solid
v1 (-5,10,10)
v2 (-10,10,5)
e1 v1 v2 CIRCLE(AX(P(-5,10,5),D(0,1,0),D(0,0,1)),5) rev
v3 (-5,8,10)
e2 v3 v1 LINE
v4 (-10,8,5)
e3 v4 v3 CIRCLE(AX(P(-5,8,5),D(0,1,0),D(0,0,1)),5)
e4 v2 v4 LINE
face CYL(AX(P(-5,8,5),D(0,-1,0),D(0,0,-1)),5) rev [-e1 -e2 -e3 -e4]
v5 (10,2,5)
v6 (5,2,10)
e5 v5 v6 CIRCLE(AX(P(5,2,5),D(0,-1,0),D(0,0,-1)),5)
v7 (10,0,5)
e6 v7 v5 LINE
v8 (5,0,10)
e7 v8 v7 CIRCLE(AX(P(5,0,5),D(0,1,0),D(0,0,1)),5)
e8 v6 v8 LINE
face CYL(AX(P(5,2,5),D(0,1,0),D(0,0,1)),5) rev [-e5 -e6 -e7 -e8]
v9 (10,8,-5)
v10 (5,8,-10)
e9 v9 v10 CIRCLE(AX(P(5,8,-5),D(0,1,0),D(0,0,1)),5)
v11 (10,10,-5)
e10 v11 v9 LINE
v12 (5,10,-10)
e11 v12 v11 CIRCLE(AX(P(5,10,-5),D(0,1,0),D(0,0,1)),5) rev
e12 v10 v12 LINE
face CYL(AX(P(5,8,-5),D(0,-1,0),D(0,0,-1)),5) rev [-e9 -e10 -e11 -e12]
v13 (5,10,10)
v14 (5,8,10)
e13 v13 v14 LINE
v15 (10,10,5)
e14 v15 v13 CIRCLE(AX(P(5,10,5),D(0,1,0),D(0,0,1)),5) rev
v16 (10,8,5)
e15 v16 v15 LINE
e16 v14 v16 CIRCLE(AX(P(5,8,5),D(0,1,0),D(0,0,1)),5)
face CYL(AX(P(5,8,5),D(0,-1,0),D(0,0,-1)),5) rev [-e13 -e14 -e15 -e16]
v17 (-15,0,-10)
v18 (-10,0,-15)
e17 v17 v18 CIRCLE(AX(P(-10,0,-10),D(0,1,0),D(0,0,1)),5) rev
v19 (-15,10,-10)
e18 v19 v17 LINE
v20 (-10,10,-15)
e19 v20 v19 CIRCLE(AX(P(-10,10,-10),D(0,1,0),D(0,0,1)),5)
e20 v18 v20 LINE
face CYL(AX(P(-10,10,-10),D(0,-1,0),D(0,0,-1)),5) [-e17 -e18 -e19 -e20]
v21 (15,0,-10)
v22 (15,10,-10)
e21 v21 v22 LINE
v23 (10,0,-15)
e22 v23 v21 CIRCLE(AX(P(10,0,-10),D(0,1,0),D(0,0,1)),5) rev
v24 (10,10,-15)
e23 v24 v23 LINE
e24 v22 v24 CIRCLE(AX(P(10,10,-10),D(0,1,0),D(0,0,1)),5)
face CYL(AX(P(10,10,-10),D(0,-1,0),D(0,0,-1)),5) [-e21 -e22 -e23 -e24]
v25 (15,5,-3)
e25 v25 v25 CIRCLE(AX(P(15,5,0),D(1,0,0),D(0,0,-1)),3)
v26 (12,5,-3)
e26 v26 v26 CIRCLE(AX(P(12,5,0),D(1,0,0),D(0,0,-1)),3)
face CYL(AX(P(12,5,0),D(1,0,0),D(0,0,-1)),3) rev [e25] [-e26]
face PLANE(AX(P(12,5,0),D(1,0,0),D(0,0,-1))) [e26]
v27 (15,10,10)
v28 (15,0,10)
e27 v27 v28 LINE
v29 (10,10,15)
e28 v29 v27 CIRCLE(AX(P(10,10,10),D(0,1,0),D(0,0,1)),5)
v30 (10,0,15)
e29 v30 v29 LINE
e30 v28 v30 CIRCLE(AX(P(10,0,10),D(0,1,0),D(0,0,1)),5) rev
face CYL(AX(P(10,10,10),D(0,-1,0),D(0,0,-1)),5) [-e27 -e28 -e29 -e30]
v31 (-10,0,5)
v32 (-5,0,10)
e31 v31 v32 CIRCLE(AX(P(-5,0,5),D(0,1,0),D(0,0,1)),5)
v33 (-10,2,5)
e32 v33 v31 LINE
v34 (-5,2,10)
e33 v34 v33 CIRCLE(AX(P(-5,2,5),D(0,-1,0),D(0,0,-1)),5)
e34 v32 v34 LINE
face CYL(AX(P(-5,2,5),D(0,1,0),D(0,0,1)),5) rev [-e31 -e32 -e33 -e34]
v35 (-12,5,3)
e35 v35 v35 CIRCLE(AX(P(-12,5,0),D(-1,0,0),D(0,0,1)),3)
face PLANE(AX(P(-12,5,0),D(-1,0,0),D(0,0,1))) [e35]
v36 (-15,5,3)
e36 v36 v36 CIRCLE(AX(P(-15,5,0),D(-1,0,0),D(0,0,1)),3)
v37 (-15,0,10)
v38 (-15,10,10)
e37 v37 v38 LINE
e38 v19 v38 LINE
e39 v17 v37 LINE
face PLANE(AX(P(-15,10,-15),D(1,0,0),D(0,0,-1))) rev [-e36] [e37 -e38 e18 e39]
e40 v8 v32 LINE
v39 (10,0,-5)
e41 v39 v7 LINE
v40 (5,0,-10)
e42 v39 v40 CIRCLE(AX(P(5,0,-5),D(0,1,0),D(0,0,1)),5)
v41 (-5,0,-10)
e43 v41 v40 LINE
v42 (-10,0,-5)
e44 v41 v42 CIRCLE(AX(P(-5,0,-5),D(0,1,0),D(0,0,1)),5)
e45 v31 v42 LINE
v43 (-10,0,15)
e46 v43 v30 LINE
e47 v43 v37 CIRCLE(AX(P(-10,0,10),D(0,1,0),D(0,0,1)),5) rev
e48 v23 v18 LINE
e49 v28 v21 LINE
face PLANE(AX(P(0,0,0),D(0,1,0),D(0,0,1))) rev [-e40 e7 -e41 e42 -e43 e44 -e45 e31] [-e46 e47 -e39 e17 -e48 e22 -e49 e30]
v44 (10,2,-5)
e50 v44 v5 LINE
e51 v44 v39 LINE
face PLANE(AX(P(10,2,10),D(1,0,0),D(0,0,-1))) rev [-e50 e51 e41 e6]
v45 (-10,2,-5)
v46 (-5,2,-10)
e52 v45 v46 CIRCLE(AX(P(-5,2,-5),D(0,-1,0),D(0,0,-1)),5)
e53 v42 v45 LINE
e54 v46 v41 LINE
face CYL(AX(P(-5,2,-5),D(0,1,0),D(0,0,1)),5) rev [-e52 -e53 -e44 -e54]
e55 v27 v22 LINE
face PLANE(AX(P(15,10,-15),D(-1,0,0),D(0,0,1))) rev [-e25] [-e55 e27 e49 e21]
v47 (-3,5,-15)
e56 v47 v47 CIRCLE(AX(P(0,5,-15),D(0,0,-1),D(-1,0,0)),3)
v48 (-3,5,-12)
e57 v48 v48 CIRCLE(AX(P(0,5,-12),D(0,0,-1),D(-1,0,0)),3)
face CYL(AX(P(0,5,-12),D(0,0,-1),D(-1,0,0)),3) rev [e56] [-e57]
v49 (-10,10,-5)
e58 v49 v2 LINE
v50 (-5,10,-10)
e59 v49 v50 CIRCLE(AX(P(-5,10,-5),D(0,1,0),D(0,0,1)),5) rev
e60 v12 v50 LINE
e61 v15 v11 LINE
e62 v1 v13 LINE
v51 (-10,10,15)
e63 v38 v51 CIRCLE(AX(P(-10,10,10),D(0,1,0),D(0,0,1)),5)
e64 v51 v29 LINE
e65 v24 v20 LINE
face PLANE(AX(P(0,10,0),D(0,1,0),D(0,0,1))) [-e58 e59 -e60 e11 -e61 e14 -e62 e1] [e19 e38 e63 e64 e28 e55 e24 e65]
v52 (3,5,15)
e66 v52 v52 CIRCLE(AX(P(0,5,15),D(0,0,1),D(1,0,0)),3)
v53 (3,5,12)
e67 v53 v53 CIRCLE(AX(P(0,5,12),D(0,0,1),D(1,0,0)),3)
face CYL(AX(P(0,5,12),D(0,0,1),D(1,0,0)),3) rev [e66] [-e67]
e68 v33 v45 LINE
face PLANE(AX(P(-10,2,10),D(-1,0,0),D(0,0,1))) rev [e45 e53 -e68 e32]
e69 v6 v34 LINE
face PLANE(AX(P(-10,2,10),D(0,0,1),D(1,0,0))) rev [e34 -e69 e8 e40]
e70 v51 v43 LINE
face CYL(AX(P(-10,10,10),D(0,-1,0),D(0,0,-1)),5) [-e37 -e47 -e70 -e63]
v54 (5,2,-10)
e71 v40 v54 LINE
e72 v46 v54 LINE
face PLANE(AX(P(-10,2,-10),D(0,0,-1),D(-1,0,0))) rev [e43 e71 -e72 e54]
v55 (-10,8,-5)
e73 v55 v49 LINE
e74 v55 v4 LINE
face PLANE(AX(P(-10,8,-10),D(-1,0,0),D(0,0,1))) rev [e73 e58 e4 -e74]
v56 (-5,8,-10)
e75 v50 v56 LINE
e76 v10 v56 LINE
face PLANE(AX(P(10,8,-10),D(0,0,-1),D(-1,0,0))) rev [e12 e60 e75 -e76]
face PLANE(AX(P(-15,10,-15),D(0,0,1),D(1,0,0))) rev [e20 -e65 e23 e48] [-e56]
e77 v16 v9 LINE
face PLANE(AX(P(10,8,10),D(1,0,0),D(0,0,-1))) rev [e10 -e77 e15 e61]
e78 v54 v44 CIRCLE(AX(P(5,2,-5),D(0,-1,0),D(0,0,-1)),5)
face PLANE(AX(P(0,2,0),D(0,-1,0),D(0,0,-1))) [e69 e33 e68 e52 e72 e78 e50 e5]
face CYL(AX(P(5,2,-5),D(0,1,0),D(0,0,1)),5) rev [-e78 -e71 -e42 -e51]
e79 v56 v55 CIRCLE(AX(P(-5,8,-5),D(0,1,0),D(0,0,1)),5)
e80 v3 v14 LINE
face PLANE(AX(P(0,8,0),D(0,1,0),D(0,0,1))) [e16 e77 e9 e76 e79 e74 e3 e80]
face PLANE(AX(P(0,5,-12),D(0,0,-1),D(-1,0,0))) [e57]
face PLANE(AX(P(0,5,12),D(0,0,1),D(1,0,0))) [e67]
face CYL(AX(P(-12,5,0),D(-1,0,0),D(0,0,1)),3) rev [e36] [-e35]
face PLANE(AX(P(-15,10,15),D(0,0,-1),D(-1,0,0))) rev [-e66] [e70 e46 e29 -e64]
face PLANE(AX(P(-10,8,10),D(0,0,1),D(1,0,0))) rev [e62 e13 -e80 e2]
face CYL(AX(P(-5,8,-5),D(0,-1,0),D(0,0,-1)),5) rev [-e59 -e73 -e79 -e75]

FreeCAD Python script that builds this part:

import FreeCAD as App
import Part
import Sketcher
from FreeCAD import Vector


def edges_at(feature, points):
    """Names of the edges that pass closest to the given points."""
    edges = feature.Shape.Edges
    near = lambda p: min(range(len(edges)), key=lambda i: edges[i].distToShape(Part.Vertex(*p))[0])
    return sorted({f"Edge{near(p) + 1}" for p in points})

doc = App.newDocument("Part")
body = doc.addObject("PartDesign::Body", "Body")

# Sketch on XZ plane
sketch1 = doc.addObject("Sketcher::SketchObject", "Sketch")
body.addObject(sketch1)
sketch1.AttachmentSupport = (doc.XZ_Plane, [""])
sketch1.MapMode = "FlatFace"
sketch1.addGeometry([
    Part.LineSegment(Vector(-15, -15, 0), Vector(-15, 15, 0)),
    Part.LineSegment(Vector(-15, 15, 0), Vector(15, 15, 0)),
    Part.LineSegment(Vector(15, 15, 0), Vector(15, -15, 0)),
    Part.LineSegment(Vector(15, -15, 0), Vector(-15, -15, 0)),
], False)
sketch1.addConstraint([
    Sketcher.Constraint("Coincident", 0, 2, 1, 1),
    Sketcher.Constraint("Coincident", 1, 2, 2, 1),
    Sketcher.Constraint("Coincident", 2, 2, 3, 1),
    Sketcher.Constraint("Coincident", 3, 2, 0, 1),
    Sketcher.Constraint("Vertical", 0),
    Sketcher.Constraint("Horizontal", 1),
    Sketcher.Constraint("Vertical", 2),
    Sketcher.Constraint("Horizontal", 3),
    Sketcher.Constraint("Symmetric", 0, 2, 2, 2, -1, 1),
    Sketcher.Constraint("Equal", 3, 0),
    Sketcher.Constraint("DistanceX", 1, 1, 1, 2, 30.0),
])
pad1 = doc.addObject("PartDesign::Pad", "Pad")
body.addObject(pad1)
pad1.Profile = sketch1
pad1.Length = 10
pad1.Reversed = True

# Sketch on XY plane
sketch2 = doc.addObject("Sketcher::SketchObject", "Sketch001")
body.addObject(sketch2)
sketch2.AttachmentSupport = (doc.XY_Plane, [""])
sketch2.MapMode = "FlatFace"
sketch2.AttachmentOffset = App.Placement(Vector(0, 0, 15), App.Rotation())
sketch2.addGeometry(Part.Circle(Vector(0, 5, 0), Vector(0, 0, 1), 3), False)
sketch2.addConstraint([
    Sketcher.Constraint("PointOnObject", 0, 3, -2),
    Sketcher.Constraint("Diameter", 0, 6.0),
    Sketcher.Constraint("DistanceY", -1, 1, 0, 3, 5.0),
])
pocket1 = doc.addObject("PartDesign::Pocket", "Pocket")
body.addObject(pocket1)
pocket1.Profile = sketch2
pocket1.Length = 3

# Sketch on YZ plane
sketch3 = doc.addObject("Sketcher::SketchObject", "Sketch002")
body.addObject(sketch3)
sketch3.AttachmentSupport = (doc.YZ_Plane, [""])
sketch3.MapMode = "FlatFace"
sketch3.AttachmentOffset = App.Placement(Vector(0, 0, 15), App.Rotation())
sketch3.addGeometry(Part.Circle(Vector(5, 0, 0), Vector(0, 0, 1), 3), False)
sketch3.addConstraint([
    Sketcher.Constraint("PointOnObject", 0, 3, -1),
    Sketcher.Constraint("Diameter", 0, 6.0),
    Sketcher.Constraint("DistanceX", -1, 1, 0, 3, 5.0),
])
pocket2 = doc.addObject("PartDesign::Pocket", "Pocket001")
body.addObject(pocket2)
pocket2.Profile = sketch3
pocket2.Length = 3

# Sketch on XY plane
sketch4 = doc.addObject("Sketcher::SketchObject", "Sketch003")
body.addObject(sketch4)
sketch4.AttachmentSupport = (doc.XY_Plane, [""])
sketch4.MapMode = "FlatFace"
sketch4.AttachmentOffset = App.Placement(Vector(0, 0, -12), App.Rotation())
sketch4.addGeometry(Part.Circle(Vector(0, 5, 0), Vector(0, 0, 1), 3), False)
sketch4.addConstraint([
    Sketcher.Constraint("PointOnObject", 0, 3, -2),
    Sketcher.Constraint("Diameter", 0, 6.0),
    Sketcher.Constraint("DistanceY", -1, 1, 0, 3, 5.0),
])
pocket3 = doc.addObject("PartDesign::Pocket", "Pocket002")
body.addObject(pocket3)
pocket3.Profile = sketch4
pocket3.Length = 3

# Sketch on YZ plane
sketch5 = doc.addObject("Sketcher::SketchObject", "Sketch004")
body.addObject(sketch5)
sketch5.AttachmentSupport = (doc.YZ_Plane, [""])
sketch5.MapMode = "FlatFace"
sketch5.AttachmentOffset = App.Placement(Vector(0, 0, -12), App.Rotation())
sketch5.addGeometry(Part.Circle(Vector(5, 0, 0), Vector(0, 0, 1), 3), False)
sketch5.addConstraint([
    Sketcher.Constraint("PointOnObject", 0, 3, -1),
    Sketcher.Constraint("Diameter", 0, 6.0),
    Sketcher.Constraint("DistanceX", -1, 1, 0, 3, 5.0),
])
pocket4 = doc.addObject("PartDesign::Pocket", "Pocket003")
body.addObject(pocket4)
pocket4.Profile = sketch5
pocket4.Length = 3
doc.recompute()

fillet = doc.addObject("PartDesign::Fillet", "Fillet")
body.addObject(fillet)
fillet.Base = (pocket4, edges_at(pocket4, [
    (15, 5, 15),
    (-15, 5, 15),
    (-15, 5, -15),
    (15, 5, -15),
]))
fillet.Radius = 5

# Sketch on XZ plane
sketch6 = doc.addObject("Sketcher::SketchObject", "Sketch005")
body.addObject(sketch6)
sketch6.AttachmentSupport = (doc.XZ_Plane, [""])
sketch6.MapMode = "FlatFace"
sketch6.AttachmentOffset = App.Placement(Vector(0, 0, -10), App.Rotation())
sketch6.addGeometry([
    Part.LineSegment(Vector(-10, -10, 0), Vector(-10, 10, 0)),
    Part.LineSegment(Vector(-10, 10, 0), Vector(10, 10, 0)),
    Part.LineSegment(Vector(10, 10, 0), Vector(10, -10, 0)),
    Part.LineSegment(Vector(10, -10, 0), Vector(-10, -10, 0)),
], False)
sketch6.addConstraint([
    Sketcher.Constraint("Coincident", 0, 2, 1, 1),
    Sketcher.Constraint("Coincident", 1, 2, 2, 1),
    Sketcher.Constraint("Coincident", 2, 2, 3, 1),
    Sketcher.Constraint("Coincident", 3, 2, 0, 1),
    Sketcher.Constraint("Vertical", 0),
    Sketcher.Constraint("Horizontal", 1),
    Sketcher.Constraint("Vertical", 2),
    Sketcher.Constraint("Horizontal", 3),
    Sketcher.Constraint("Symmetric", 0, 2, 2, 2, -1, 1),
    Sketcher.Constraint("Equal", 3, 0),
    Sketcher.Constraint("DistanceX", 1, 1, 1, 2, 20.0),
])
pocket5 = doc.addObject("PartDesign::Pocket", "Pocket004")
body.addObject(pocket5)
pocket5.Profile = sketch6
pocket5.Length = 2
pocket5.Reversed = True
doc.recompute()

fillet2 = doc.addObject("PartDesign::Fillet", "Fillet001")
body.addObject(fillet2)
fillet2.Base = (pocket5, edges_at(pocket5, [
    (10, 9, -10),
    (10, 9, 10),
    (-10, 9, 10),
    (-10, 9, -10),
]))
fillet2.Radius = 5

# Sketch on XZ plane
sketch7 = doc.addObject("Sketcher::SketchObject", "Sketch006")
body.addObject(sketch7)
sketch7.AttachmentSupport = (doc.XZ_Plane, [""])
sketch7.MapMode = "FlatFace"
sketch7.addGeometry([
    Part.LineSegment(Vector(10, -10, 0), Vector(10, 10, 0)),
    Part.LineSegment(Vector(10, 10, 0), Vector(-10, 10, 0)),
    Part.LineSegment(Vector(-10, 10, 0), Vector(-10, -10, 0)),
    Part.LineSegment(Vector(-10, -10, 0), Vector(10, -10, 0)),
], False)
sketch7.addConstraint([
    Sketcher.Constraint("Coincident", 0, 2, 1, 1),
    Sketcher.Constraint("Coincident", 1, 2, 2, 1),
    Sketcher.Constraint("Coincident", 2, 2, 3, 1),
    Sketcher.Constraint("Coincident", 3, 2, 0, 1),
    Sketcher.Constraint("Vertical", 0),
    Sketcher.Constraint("Horizontal", 1),
    Sketcher.Constraint("Vertical", 2),
    Sketcher.Constraint("Horizontal", 3),
    Sketcher.Constraint("Symmetric", 0, 2, 2, 2, -1, 1),
    Sketcher.Constraint("Equal", 3, 0),
    Sketcher.Constraint("DistanceX", 1, 2, 1, 1, 20.0),
])
pocket6 = doc.addObject("PartDesign::Pocket", "Pocket005")
body.addObject(pocket6)
pocket6.Profile = sketch7
pocket6.Length = 2
doc.recompute()

fillet3 = doc.addObject("PartDesign::Fillet", "Fillet002")
body.addObject(fillet3)
fillet3.Base = (pocket6, edges_at(pocket6, [
    (10, 1, 10),
    (10, 1, -10),
    (-10, 1, -10),
    (-10, 1, 10),
]))
fillet3.Radius = 5

doc.recompute()
